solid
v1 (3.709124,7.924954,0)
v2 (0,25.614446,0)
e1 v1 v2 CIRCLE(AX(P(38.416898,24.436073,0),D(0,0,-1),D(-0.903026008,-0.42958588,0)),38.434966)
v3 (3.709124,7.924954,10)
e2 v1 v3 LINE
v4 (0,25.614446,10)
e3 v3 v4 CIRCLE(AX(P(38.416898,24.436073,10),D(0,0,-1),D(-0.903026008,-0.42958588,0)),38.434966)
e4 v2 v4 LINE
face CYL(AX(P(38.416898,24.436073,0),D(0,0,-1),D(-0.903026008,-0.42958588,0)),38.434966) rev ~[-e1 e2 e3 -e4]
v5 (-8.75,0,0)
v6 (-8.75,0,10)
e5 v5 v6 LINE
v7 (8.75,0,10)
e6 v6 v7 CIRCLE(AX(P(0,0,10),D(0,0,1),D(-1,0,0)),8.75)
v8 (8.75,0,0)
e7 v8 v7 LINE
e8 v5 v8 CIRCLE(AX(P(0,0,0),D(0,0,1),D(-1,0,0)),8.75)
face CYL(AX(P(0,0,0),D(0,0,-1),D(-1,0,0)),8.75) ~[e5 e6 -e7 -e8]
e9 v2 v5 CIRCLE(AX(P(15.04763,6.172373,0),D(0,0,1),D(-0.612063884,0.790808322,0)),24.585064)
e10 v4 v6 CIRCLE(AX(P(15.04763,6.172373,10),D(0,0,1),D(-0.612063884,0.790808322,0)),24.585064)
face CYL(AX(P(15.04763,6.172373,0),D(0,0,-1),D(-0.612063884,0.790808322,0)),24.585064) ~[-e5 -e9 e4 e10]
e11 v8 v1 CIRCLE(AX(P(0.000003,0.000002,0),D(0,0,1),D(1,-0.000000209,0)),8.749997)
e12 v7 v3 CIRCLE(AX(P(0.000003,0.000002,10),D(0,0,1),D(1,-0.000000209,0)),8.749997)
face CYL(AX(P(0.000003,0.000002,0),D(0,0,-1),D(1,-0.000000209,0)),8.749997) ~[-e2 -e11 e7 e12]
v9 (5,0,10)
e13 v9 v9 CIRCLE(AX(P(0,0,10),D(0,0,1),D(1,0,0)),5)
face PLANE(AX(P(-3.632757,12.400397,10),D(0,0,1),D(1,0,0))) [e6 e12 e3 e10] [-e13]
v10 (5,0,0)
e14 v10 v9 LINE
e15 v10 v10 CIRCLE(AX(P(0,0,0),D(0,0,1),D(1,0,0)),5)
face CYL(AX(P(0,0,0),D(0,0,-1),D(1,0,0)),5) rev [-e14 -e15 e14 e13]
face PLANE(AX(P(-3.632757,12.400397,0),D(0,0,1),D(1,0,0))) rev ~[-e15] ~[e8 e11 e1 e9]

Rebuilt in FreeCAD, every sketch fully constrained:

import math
import FreeCAD as App
import Part
import Sketcher
from FreeCAD import Vector

doc = App.newDocument("Part")
body = doc.addObject("PartDesign::Body", "Body")

# Sketch on XY plane
sketch1 = doc.addObject("Sketcher::SketchObject", "Sketch")
body.addObject(sketch1)
sketch1.AttachmentSupport = (doc.XY_Plane, [""])
sketch1.MapMode = "FlatFace"
sketch1.addGeometry([
    Part.ArcOfCircle(Part.Circle(Vector(15, 6, 0), Vector(0, 0, 1), 25), math.radians(128), math.radians(195)),  # 0
    Part.ArcOfCircle(Part.Circle(Vector(0, 0, 0), Vector(0, 0, 1), 9), math.radians(180), math.radians(360)),  # 1
    Part.ArcOfCircle(Part.Circle(Vector(0, 0, 0), Vector(0, 0, 1), 9), math.radians(0), math.radians(65)),  # 2
    Part.ArcOfCircle(Part.Circle(Vector(38, 24, 0), Vector(0, 0, 1), 38), math.radians(178), math.radians(205)),  # 3
    Part.Circle(Vector(0, 0, 0), Vector(0, 0, 1), 5),  # 4
], False)
sketch1.addConstraint([
    Sketcher.Constraint("Coincident", 0, 2, 1, 1),
    Sketcher.Constraint("Tangent", 1, 2, 2, 1),
    Sketcher.Constraint("Coincident", 2, 2, 3, 2),
    Sketcher.Constraint("Coincident", 3, 1, 0, 1),
    Sketcher.Constraint("Coincident", 1, 3, -1, 1),
    Sketcher.Constraint("Coincident", 4, 3, -1, 1),
    Sketcher.Constraint("PointOnObject", 0, 2, -1),
    Sketcher.Constraint("PointOnObject", 1, 2, -1),
    Sketcher.Constraint("PointOnObject", 3, 1, -2),
    Sketcher.Constraint("Diameter", 4, 10.0),
    Sketcher.Constraint("Radius", 1, 8.75),
    Sketcher.Constraint("Radius", 0, 24.585064),
    Sketcher.Constraint("Radius", 2, 8.749997),
    Sketcher.Constraint("Radius", 3, 38.434966),
    Sketcher.Constraint("DistanceY", 0, 3, 3, 3, 18.2637),
    Sketcher.Constraint("DistanceX", -1, 1, 0, 3, 15.04763),
])
pad1 = doc.addObject("PartDesign::Pad", "Pad")
body.addObject(pad1)
pad1.Profile = sketch1
pad1.Length = 10

doc.recompute()
